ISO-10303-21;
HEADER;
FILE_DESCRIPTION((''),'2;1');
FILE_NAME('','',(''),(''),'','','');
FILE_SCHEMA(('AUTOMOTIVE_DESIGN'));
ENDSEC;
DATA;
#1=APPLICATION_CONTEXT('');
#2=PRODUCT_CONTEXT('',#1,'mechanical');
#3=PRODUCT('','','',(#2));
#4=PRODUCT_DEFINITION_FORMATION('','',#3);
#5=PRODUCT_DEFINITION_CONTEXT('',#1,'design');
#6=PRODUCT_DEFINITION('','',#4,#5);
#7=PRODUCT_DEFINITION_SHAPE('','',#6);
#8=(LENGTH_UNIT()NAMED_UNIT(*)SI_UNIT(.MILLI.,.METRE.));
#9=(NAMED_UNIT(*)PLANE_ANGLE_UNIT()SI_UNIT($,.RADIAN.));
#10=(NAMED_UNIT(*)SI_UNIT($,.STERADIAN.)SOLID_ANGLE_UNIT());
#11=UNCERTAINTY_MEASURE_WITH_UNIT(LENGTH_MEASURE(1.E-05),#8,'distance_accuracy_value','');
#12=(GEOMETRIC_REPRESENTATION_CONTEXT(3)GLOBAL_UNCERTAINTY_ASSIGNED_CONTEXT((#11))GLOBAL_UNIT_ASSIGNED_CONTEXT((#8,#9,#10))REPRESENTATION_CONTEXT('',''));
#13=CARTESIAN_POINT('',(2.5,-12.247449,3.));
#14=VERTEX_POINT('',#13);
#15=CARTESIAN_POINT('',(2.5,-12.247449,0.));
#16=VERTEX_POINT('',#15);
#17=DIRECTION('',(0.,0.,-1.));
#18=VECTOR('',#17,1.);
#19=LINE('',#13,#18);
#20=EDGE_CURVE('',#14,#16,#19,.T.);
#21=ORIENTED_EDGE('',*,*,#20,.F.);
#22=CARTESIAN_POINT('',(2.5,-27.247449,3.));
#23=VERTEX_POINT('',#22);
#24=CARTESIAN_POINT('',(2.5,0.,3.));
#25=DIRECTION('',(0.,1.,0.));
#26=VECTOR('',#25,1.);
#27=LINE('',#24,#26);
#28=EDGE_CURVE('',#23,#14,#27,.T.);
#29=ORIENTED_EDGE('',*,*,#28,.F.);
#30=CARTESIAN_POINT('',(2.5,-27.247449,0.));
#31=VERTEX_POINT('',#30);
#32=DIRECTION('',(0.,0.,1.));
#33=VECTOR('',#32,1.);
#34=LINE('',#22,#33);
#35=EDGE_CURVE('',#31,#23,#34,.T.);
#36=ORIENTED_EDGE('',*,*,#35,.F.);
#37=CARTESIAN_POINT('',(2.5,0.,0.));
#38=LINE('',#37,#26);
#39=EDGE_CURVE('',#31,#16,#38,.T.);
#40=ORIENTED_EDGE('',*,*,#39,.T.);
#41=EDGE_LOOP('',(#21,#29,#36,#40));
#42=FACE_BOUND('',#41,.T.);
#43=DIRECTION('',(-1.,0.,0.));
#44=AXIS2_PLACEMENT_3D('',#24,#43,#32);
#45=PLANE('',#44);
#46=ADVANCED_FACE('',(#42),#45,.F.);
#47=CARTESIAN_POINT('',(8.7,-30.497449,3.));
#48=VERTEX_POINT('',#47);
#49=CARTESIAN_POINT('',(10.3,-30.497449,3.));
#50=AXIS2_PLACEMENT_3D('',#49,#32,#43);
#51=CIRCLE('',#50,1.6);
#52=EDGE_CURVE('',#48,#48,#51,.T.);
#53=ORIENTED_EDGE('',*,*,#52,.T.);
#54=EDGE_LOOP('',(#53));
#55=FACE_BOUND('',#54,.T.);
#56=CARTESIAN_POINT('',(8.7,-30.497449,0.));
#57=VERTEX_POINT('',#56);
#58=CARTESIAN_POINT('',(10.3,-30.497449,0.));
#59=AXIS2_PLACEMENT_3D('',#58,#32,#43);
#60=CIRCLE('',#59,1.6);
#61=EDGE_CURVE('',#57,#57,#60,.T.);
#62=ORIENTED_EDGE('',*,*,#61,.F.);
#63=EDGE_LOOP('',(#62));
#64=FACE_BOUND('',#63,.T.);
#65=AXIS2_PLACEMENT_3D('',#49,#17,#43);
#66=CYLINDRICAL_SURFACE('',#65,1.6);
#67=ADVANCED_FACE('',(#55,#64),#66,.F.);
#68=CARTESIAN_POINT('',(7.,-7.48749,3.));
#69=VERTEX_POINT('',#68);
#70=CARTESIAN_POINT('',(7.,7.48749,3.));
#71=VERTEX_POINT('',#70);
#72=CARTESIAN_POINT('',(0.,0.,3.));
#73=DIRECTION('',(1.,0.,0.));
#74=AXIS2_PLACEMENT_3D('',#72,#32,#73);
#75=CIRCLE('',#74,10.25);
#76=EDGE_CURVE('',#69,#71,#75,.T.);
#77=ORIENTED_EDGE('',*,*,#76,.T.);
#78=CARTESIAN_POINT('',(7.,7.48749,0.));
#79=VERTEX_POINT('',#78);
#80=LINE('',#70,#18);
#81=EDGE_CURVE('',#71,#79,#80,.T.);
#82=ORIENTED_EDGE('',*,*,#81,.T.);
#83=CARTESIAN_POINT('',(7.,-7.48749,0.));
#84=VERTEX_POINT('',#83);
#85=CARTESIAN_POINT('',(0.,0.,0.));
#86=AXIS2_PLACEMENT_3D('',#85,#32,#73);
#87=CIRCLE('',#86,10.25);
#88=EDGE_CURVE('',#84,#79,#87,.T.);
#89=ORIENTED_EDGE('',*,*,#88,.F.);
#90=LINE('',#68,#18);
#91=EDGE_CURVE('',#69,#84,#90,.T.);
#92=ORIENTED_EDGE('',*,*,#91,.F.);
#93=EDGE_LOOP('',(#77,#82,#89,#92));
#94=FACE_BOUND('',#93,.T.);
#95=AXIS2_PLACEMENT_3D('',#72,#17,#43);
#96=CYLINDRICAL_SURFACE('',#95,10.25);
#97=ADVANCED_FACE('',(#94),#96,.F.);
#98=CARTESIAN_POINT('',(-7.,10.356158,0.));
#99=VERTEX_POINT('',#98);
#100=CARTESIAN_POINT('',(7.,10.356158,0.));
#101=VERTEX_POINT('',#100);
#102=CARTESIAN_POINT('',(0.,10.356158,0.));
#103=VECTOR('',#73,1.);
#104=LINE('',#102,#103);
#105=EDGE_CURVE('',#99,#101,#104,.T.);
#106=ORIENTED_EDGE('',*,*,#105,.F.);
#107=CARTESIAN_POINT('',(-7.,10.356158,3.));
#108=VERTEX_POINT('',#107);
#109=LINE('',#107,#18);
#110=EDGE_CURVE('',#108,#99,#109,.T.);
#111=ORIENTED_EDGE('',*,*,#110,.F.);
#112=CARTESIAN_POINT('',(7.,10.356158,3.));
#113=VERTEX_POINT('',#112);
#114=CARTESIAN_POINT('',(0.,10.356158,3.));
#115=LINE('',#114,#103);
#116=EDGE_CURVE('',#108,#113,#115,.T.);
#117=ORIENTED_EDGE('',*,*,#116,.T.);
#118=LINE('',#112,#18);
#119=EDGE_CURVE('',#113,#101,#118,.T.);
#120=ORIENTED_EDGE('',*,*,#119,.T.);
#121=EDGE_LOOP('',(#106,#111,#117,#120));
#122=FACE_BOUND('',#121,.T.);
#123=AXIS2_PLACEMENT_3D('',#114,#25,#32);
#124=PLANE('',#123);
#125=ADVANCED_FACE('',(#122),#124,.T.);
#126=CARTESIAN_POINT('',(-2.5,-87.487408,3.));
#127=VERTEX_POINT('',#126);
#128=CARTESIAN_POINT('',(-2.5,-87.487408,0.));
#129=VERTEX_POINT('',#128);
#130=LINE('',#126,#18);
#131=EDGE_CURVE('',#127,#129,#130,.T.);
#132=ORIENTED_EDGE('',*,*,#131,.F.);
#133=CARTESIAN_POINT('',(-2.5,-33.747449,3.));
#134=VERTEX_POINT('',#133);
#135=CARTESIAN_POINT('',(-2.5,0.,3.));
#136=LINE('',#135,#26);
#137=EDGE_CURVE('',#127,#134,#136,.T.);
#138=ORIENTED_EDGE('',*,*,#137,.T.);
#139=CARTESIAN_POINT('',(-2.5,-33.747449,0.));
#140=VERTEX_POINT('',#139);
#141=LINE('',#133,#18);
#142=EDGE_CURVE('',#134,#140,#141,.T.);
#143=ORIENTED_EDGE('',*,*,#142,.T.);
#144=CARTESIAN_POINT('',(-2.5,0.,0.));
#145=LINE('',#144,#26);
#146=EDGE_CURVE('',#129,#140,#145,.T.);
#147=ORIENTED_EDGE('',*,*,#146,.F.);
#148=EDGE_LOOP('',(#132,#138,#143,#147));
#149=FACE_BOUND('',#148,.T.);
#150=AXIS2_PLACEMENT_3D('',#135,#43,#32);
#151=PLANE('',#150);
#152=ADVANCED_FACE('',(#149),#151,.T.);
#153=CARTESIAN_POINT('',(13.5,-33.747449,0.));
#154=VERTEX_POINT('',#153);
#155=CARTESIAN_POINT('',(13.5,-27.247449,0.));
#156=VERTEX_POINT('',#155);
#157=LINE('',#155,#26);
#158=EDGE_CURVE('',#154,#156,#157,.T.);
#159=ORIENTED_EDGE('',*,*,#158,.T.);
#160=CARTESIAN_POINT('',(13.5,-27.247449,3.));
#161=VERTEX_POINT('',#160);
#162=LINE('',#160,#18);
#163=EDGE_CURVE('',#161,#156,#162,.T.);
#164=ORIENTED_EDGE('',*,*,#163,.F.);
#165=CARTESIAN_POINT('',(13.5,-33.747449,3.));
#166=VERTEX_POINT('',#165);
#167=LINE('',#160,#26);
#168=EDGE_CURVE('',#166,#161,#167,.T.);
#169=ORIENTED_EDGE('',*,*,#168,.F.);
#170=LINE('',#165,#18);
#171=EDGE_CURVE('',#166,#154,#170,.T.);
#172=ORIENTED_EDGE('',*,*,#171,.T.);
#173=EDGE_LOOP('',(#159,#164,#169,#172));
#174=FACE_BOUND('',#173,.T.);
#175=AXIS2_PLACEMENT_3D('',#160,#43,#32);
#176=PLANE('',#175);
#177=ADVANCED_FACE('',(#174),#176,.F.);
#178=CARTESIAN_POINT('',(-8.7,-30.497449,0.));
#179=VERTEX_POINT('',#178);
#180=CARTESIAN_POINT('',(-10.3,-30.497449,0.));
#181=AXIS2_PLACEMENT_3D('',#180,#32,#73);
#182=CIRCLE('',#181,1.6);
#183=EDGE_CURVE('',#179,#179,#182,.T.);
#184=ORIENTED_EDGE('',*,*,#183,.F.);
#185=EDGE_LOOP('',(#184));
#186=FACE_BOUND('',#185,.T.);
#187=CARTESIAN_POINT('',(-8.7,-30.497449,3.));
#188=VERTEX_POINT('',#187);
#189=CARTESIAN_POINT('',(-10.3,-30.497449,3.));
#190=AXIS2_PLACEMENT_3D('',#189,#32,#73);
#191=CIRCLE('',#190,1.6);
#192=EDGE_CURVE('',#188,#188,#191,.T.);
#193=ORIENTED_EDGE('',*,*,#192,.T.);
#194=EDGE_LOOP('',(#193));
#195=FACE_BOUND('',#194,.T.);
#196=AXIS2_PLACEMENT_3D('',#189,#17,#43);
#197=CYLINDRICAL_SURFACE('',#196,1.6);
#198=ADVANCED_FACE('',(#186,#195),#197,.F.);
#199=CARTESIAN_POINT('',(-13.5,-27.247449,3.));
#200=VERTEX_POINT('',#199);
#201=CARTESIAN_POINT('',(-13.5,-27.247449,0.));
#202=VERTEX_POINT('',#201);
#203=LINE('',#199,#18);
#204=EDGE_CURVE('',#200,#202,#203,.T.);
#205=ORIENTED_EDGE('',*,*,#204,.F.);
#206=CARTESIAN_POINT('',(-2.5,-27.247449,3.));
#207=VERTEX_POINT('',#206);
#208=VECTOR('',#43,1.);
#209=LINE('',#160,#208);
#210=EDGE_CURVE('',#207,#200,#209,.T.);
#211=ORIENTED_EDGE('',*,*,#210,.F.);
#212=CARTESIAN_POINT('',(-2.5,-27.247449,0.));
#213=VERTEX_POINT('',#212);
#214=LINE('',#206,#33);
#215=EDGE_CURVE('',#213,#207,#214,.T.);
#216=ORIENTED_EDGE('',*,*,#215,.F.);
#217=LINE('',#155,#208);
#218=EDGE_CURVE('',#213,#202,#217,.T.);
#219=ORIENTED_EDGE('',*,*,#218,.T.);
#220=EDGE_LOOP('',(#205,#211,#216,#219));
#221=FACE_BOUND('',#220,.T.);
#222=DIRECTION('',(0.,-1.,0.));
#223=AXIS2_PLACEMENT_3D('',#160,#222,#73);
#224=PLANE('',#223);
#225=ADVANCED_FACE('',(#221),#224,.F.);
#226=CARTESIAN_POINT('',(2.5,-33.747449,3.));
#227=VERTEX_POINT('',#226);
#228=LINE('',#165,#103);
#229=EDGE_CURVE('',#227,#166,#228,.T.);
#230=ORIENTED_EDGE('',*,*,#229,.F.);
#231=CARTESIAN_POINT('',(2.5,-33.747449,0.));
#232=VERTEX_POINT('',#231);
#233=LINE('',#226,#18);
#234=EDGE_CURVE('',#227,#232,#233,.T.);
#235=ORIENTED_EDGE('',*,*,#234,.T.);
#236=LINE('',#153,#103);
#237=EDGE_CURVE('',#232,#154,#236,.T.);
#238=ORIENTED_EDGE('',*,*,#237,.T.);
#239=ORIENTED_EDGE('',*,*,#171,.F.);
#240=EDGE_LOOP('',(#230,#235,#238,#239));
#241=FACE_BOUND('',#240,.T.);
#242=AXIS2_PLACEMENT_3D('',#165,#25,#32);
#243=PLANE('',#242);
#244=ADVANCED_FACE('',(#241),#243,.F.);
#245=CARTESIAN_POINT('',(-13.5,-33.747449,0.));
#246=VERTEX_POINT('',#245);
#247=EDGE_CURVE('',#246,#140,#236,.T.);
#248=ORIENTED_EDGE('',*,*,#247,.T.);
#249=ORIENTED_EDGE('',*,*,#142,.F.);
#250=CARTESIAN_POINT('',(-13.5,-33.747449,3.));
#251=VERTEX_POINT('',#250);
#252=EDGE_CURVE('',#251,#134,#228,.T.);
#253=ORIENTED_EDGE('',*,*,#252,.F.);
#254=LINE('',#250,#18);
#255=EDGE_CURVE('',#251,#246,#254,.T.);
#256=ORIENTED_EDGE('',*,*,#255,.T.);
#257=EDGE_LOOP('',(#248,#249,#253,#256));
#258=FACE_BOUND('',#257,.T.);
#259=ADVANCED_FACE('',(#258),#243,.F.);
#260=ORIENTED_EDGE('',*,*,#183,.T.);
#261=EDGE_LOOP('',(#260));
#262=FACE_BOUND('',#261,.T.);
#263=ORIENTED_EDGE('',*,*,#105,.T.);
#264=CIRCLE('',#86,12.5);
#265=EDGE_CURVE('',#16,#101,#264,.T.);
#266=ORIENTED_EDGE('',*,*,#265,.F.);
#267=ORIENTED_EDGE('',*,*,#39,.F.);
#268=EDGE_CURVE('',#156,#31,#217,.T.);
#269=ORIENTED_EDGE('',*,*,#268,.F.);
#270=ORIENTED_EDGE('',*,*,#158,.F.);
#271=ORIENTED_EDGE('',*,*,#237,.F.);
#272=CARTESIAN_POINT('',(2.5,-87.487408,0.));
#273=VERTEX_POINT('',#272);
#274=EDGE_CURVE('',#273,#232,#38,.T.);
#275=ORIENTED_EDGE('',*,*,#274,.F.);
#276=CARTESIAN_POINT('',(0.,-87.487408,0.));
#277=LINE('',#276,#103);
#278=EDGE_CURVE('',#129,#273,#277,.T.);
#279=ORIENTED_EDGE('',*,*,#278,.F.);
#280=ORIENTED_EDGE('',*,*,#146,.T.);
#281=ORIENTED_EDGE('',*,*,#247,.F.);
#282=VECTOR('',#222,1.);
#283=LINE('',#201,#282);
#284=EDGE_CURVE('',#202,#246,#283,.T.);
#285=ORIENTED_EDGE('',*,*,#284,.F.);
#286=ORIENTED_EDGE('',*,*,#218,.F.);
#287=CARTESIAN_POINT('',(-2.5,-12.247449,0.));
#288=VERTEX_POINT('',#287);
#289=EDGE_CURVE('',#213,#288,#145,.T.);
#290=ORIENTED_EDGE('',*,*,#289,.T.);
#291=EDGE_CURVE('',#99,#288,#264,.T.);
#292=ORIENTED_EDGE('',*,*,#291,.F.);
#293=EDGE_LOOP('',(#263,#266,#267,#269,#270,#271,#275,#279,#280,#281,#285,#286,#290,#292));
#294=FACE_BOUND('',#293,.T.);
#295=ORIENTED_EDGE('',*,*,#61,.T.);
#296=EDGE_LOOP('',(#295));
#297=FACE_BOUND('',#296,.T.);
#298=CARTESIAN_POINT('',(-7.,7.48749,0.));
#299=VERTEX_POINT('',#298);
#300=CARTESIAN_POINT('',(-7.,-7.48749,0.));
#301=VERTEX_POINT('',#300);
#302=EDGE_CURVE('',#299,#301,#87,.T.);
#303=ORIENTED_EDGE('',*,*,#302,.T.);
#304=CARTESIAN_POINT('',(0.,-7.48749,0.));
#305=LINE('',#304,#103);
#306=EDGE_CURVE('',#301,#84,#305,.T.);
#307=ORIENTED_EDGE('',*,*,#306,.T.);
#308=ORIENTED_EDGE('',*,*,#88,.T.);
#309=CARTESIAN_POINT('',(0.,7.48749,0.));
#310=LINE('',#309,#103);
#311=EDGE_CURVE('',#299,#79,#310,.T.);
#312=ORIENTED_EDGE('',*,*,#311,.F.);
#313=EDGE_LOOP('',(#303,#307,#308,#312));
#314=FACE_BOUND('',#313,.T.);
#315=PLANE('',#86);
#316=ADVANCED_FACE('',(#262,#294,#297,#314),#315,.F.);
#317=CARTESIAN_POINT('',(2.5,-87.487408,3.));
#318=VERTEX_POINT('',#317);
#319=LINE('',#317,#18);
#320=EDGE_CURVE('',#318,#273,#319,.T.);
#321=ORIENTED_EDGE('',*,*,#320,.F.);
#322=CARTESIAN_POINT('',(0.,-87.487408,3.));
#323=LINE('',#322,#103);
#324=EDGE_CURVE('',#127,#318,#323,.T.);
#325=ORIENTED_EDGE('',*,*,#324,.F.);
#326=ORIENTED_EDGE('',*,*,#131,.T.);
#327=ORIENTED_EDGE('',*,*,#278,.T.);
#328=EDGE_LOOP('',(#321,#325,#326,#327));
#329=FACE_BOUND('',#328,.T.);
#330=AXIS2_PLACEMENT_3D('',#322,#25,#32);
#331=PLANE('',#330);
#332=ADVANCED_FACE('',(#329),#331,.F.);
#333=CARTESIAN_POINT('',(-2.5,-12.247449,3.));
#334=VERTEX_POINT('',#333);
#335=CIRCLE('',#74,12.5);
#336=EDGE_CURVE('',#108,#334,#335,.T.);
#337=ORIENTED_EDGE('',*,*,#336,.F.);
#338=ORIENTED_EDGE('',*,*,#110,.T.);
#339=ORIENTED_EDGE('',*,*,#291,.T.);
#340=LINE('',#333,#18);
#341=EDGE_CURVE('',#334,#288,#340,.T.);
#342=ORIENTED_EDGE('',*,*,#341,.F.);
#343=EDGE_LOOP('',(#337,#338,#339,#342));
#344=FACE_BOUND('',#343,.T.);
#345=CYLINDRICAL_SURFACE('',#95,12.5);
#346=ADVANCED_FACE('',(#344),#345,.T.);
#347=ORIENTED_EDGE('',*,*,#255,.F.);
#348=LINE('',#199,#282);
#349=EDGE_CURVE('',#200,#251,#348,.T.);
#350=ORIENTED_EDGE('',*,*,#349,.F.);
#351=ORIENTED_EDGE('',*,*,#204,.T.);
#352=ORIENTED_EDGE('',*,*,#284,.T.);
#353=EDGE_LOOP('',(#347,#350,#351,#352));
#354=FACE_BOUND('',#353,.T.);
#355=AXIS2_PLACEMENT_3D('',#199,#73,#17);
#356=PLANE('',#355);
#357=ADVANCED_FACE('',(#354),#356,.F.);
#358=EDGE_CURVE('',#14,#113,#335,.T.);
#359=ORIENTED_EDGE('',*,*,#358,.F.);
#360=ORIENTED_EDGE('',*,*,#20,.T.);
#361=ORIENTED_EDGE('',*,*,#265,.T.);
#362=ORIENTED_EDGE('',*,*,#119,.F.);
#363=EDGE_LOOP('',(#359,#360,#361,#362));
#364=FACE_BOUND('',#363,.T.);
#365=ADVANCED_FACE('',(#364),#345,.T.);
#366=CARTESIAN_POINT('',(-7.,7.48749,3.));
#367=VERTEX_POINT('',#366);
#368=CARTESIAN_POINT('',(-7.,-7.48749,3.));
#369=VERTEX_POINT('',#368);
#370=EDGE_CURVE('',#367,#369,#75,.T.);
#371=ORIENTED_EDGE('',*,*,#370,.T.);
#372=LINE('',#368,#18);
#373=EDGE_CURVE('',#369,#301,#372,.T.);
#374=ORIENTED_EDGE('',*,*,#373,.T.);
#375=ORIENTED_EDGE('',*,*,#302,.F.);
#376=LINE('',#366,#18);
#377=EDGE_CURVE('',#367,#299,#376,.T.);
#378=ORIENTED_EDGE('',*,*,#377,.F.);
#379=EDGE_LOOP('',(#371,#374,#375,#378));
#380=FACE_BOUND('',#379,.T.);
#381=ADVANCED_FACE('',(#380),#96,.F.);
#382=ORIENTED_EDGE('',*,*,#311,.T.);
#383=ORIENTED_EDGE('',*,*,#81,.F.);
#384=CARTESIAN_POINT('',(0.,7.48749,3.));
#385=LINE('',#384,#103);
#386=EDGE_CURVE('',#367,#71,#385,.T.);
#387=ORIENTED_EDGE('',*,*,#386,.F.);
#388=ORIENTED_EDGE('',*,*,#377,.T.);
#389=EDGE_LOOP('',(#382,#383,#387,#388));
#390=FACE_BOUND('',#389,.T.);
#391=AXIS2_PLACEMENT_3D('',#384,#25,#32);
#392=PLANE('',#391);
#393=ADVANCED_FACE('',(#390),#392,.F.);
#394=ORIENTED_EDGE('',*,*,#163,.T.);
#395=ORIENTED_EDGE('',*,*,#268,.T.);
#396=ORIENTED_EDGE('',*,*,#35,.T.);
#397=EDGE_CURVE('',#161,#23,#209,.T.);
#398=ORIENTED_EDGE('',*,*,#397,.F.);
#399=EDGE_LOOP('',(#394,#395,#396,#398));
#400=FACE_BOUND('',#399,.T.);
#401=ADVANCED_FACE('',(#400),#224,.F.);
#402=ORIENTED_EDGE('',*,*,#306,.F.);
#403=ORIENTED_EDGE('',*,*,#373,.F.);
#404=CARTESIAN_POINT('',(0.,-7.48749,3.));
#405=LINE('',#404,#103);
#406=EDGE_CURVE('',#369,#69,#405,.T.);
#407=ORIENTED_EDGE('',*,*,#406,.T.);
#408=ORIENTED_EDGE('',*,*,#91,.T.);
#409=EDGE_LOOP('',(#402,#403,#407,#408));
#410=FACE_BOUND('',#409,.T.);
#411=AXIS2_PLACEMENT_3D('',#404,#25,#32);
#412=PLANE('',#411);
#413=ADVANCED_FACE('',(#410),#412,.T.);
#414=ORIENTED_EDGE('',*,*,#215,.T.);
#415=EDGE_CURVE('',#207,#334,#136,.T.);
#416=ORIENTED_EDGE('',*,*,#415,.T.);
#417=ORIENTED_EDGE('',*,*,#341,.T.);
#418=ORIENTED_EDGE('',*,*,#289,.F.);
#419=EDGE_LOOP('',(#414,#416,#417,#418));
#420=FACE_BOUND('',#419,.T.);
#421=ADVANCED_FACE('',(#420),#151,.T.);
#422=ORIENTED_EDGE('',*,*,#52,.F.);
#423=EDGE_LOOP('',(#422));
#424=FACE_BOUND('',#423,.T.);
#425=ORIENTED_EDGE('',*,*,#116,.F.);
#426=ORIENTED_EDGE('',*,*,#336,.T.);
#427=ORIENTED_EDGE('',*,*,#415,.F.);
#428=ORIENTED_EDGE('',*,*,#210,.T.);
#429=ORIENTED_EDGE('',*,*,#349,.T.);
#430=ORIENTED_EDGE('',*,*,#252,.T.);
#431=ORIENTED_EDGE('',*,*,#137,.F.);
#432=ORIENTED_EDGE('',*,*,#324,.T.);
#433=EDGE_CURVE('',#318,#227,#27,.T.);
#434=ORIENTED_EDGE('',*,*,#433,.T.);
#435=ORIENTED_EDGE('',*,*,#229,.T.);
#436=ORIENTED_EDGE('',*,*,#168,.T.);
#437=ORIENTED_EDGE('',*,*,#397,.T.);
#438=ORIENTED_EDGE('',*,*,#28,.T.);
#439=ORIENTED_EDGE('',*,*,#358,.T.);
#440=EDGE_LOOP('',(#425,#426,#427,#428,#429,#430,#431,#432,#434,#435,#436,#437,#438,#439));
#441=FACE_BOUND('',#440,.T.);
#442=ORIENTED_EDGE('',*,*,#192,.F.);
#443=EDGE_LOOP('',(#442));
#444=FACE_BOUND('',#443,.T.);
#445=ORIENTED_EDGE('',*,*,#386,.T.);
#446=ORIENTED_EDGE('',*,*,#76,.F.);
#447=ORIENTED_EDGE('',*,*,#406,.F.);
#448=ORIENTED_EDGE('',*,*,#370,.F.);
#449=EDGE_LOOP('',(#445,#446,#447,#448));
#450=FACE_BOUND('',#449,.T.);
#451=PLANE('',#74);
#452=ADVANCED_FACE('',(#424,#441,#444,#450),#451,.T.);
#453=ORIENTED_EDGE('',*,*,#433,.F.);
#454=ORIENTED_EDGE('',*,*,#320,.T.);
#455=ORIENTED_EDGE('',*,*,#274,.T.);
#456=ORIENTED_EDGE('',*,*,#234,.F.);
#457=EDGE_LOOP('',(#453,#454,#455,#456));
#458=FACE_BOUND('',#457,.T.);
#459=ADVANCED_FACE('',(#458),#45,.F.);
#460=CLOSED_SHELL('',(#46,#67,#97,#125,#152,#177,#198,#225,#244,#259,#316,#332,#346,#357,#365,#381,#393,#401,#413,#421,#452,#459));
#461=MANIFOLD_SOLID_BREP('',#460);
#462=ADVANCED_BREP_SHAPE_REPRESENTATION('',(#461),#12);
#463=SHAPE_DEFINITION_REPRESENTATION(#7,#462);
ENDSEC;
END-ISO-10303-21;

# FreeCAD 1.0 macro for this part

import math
import FreeCAD as App
import Part
import Sketcher

V = App.Vector
Q = App.Units.Quantity

doc = App.newDocument("Part")
body = doc.addObject("PartDesign::Body", "Body")

sketch1 = doc.addObject("Sketcher::SketchObject", "Sketch")
body.addObject(sketch1)
sketch1.AttachmentSupport = (doc.XY_Plane, [""])
sketch1.MapMode = "FlatFace"
sketch1.addGeometry([
    Part.LineSegment(V(2, -87, 0), V(2, -12, 0)),
    Part.ArcOfCircle(Part.Circle(V(0, 0, 0), V(0, 0, 1), 12), math.radians(-78), math.radians(56)),
    Part.LineSegment(V(7, 10, 0), V(-7, 10, 0)),
    Part.ArcOfCircle(Part.Circle(V(0, 0, 0), V(0, 0, 1), 12), math.radians(124), math.radians(258)),
    Part.LineSegment(V(-2, -12, 0), V(-2, -87, 0)),
    Part.LineSegment(V(-2, -87, 0), V(2, -87, 0)),
    Part.ArcOfCircle(Part.Circle(V(0, 0, 0), V(0, 0, 1), 10), math.radians(-47), math.radians(47)),
    Part.LineSegment(V(7, -7, 0), V(-7, -7, 0)),
    Part.ArcOfCircle(Part.Circle(V(0, 0, 0), V(0, 0, 1), 10), math.radians(133), math.radians(227)),
    Part.LineSegment(V(-7, 7, 0), V(7, 7, 0)),
], False)
sketch1.addConstraint([
    Sketcher.Constraint("Coincident", 0, 2, 1, 1),
    Sketcher.Constraint("Coincident", 1, 2, 2, 1),
    Sketcher.Constraint("Coincident", 2, 2, 3, 1),
    Sketcher.Constraint("Coincident", 3, 2, 4, 1),
    Sketcher.Constraint("Coincident", 4, 2, 5, 1),
    Sketcher.Constraint("Coincident", 5, 2, 0, 1),
    Sketcher.Constraint("Coincident", 6, 1, 7, 1),
    Sketcher.Constraint("Coincident", 7, 2, 8, 2),
    Sketcher.Constraint("Coincident", 8, 1, 9, 1),
    Sketcher.Constraint("Coincident", 9, 2, 6, 2),
    Sketcher.Constraint("Vertical", 0),
    Sketcher.Constraint("Horizontal", 2),
    Sketcher.Constraint("Vertical", 4),
    Sketcher.Constraint("Horizontal", 5),
    Sketcher.Constraint("Horizontal", 7),
    Sketcher.Constraint("Horizontal", 9),
    Sketcher.Constraint("Coincident", 1, 3, -1, 1),
    Sketcher.Constraint("Coincident", 3, 3, -1, 1),
    Sketcher.Constraint("Coincident", 6, 3, -1, 1),
    Sketcher.Constraint("Coincident", 8, 3, -1, 1),
    Sketcher.Constraint("Equal", 1, 3),
    Sketcher.Constraint("Equal", 6, 8),
    Sketcher.Constraint("Horizontal", 0, 2, 3, 2),
    Sketcher.Constraint("Vertical", 1, 2, 6, 1),
    Sketcher.Constraint("Vertical", 7, 2, 8, 1),
    Sketcher.Constraint("Radius", 1, Q("12.5 mm")),
    Sketcher.Constraint("DistanceX", 2, 2, 2, 1, Q("14 mm")),
    Sketcher.Constraint("DistanceX", 5, 1, 5, 2, Q("5 mm")),
    Sketcher.Constraint("Radius", 6, Q("10.25 mm")),
    Sketcher.Constraint("DistanceY", 0, 1, 0, 2, Q("75.239959 mm")),
])
pad1 = doc.addObject("PartDesign::Pad", "Pad")
body.addObject(pad1)
pad1.Profile = sketch1
pad1.Length = 3

sketch2 = doc.addObject("Sketcher::SketchObject", "Sketch001")
body.addObject(sketch2)
sketch2.AttachmentSupport = (doc.XY_Plane, [""])
sketch2.MapMode = "FlatFace"
sketch2.addGeometry([
    Part.LineSegment(V(-13.5, -27.2, 0), V(-13.5, -33.7, 0)),
    Part.LineSegment(V(-13.5, -33.7, 0), V(13.5, -33.7, 0)),
    Part.LineSegment(V(13.5, -33.7, 0), V(13.5, -27.2, 0)),
    Part.LineSegment(V(13.5, -27.2, 0), V(-13.5, -27.2, 0)),
    Part.Circle(V(-10.3, -30.5, 0), V(0, 0, 1), 1.6),
    Part.Circle(V(10.3, -30.5, 0), V(0, 0, 1), 1.6),
], False)
sketch2.addConstraint([
    Sketcher.Constraint("Coincident", 0, 2, 1, 1),
    Sketcher.Constraint("Coincident", 1, 2, 2, 1),
    Sketcher.Constraint("Coincident", 2, 2, 3, 1),
    Sketcher.Constraint("Coincident", 3, 2, 0, 1),
    Sketcher.Constraint("Vertical", 0),
    Sketcher.Constraint("Horizontal", 1),
    Sketcher.Constraint("Vertical", 2),
    Sketcher.Constraint("Horizontal", 3),
    Sketcher.Constraint("Equal", 4, 5),
    Sketcher.Constraint("Symmetric", 4, 3, 5, 3, -2),
    Sketcher.Constraint("Diameter", 4, Q("3.2 mm")),
    Sketcher.Constraint("DistanceX", 1, 1, 1, 2, Q("27 mm")),
    Sketcher.Constraint("DistanceY", 0, 2, 0, 1, Q("6.5 mm")),
    Sketcher.Constraint("DistanceX", 4, 3, -1, 1, Q("10.3 mm")),
    Sketcher.Constraint("DistanceX", 0, 2, -1, 1, Q("13.5 mm")),
    Sketcher.Constraint("DistanceY", 0, 2, 4, 3, Q("3.25 mm")),
    Sketcher.Constraint("DistanceY", 4, 3, -1, 1, Q("30.497449 mm")),
])
pad2 = doc.addObject("PartDesign::Pad", "Pad001")
body.addObject(pad2)
pad2.Profile = sketch2
pad2.Length = 3

doc.recompute()
